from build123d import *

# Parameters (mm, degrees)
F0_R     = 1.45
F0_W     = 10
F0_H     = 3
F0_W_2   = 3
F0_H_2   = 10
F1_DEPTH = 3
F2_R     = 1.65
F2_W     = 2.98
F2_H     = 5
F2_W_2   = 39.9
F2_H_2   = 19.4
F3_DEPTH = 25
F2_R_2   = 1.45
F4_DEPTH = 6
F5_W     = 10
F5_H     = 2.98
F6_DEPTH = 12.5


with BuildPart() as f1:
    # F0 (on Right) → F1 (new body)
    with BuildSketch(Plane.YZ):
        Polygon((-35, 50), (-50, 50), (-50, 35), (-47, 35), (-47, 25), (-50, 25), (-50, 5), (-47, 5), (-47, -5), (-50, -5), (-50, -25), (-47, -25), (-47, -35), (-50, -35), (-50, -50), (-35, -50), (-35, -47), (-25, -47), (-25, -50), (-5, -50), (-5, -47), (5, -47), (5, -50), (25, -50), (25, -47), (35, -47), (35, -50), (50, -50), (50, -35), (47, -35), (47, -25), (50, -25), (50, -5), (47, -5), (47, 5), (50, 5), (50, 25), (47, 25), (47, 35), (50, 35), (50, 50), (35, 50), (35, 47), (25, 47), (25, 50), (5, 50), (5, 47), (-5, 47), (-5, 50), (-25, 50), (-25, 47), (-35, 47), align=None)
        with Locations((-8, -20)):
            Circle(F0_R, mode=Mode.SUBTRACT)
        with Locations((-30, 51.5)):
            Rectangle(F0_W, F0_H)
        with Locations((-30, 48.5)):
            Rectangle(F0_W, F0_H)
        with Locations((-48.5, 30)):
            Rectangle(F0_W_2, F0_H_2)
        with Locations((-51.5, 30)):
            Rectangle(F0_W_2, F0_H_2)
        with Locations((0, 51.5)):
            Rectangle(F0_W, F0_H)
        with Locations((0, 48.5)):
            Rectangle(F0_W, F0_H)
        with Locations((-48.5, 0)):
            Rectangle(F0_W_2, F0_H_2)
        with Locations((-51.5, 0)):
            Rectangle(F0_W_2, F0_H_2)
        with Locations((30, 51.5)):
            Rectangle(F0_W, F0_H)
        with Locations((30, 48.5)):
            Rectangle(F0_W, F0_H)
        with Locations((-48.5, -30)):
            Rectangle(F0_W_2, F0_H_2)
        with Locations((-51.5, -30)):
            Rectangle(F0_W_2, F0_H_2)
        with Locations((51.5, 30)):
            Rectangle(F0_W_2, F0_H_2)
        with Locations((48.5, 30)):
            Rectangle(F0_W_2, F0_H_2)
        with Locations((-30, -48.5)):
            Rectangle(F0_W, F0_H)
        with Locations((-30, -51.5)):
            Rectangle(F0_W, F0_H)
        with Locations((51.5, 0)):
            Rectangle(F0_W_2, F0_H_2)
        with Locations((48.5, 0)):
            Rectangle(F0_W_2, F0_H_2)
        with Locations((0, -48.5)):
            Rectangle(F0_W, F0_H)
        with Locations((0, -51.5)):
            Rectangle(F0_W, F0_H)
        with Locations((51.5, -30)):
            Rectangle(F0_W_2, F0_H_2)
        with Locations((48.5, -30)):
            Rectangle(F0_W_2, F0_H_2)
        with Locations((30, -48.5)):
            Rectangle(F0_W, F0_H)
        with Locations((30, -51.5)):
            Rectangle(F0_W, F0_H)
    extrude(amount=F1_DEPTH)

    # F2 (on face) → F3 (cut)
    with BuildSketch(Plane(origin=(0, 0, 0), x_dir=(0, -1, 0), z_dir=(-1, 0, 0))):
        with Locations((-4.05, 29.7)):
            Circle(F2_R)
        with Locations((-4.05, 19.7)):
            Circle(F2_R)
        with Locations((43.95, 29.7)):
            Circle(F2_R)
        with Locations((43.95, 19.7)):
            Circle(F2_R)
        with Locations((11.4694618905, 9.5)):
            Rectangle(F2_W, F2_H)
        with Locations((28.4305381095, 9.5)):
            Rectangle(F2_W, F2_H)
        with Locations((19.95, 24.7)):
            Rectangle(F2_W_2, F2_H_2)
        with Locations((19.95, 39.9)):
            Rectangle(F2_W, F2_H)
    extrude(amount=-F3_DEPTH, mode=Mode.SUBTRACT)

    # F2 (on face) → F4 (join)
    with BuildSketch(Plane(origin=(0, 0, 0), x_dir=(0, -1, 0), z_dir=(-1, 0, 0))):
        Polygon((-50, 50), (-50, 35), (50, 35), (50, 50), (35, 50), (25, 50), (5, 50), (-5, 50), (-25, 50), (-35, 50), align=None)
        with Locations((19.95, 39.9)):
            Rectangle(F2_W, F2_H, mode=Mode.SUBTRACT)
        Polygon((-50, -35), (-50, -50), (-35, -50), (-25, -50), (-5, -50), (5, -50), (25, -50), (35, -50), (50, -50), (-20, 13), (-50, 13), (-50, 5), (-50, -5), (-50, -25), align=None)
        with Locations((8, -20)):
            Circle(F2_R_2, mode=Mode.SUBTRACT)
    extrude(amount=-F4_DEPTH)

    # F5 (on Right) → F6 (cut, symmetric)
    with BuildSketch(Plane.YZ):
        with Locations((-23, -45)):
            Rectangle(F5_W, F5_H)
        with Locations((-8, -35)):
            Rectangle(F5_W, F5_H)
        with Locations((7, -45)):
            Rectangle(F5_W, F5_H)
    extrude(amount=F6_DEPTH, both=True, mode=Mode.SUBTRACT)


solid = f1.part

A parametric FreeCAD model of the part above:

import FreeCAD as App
import Part
import Sketcher
from FreeCAD import Vector


def add_polygon(sketch, points):
    """Adds a closed chain of lines whose ends are joined by coincident constraints."""
    first, n = sketch.GeometryCount, len(points)
    for a, b in zip(points, points[1:] + points[:1]):
        sketch.addGeometry(Part.LineSegment(App.Vector(*a, 0), App.Vector(*b, 0)), False)
    for i in range(n):
        sketch.addConstraint(Sketcher.Constraint("Coincident", first + i, 2, first + (i + 1) % n, 1))

doc = App.newDocument("Part")
body = doc.addObject("PartDesign::Body", "Body")

# Sketch on YZ plane
sketch1 = body.newObject("Sketcher::SketchObject", "Sketch")
sketch1.AttachmentSupport = (doc.getObject("YZ_Plane"), [""])
sketch1.MapMode = "FlatFace"
add_polygon(sketch1, [(-35, 50), (-50, 50), (-50, 35), (-53, 35), (-53, 25), (-50, 25), (-50, 5), (-53, 5), (-53, -5), (-50, -5), (-50, -25), (-53, -25), (-53, -35), (-50, -35), (-50, -50), (-35, -50), (-35, -53), (-25, -53), (-25, -50), (-5, -50), (-5, -53), (5, -53), (5, -50), (25, -50), (25, -53), (35, -53), (35, -50), (50, -50), (50, -35), (53, -35), (53, -25), (50, -25), (50, -5), (53, -5), (53, 5), (50, 5), (50, 25), (53, 25), (53, 35), (50, 35), (50, 50), (35, 50), (35, 53), (25, 53), (25, 50), (5, 50), (5, 53), (-5, 53), (-5, 50), (-25, 50), (-25, 53), (-35, 53)])  # lines 0-51
sketch1.addGeometry(Part.Circle(Vector(-8, -20, 0), Vector(0, 0, 1), 1.45), False)  # 52
sketch1.addConstraint([
    Sketcher.Constraint("Horizontal", 0),
    Sketcher.Constraint("Vertical", 1),
    Sketcher.Constraint("Horizontal", 2),
    Sketcher.Constraint("Vertical", 3),
    Sketcher.Constraint("Horizontal", 4),
    Sketcher.Constraint("Vertical", 5),
    Sketcher.Constraint("Horizontal", 6),
    Sketcher.Constraint("Vertical", 7),
    Sketcher.Constraint("Horizontal", 8),
    Sketcher.Constraint("Vertical", 9),
    Sketcher.Constraint("Horizontal", 10),
    Sketcher.Constraint("Vertical", 11),
    Sketcher.Constraint("Horizontal", 12),
    Sketcher.Constraint("Vertical", 13),
    Sketcher.Constraint("Horizontal", 14),
    Sketcher.Constraint("Vertical", 15),
    Sketcher.Constraint("Horizontal", 16),
    Sketcher.Constraint("Vertical", 17),
    Sketcher.Constraint("Horizontal", 18),
    Sketcher.Constraint("Vertical", 19),
    Sketcher.Constraint("Horizontal", 20),
    Sketcher.Constraint("Vertical", 21),
    Sketcher.Constraint("Horizontal", 22),
    Sketcher.Constraint("Vertical", 23),
    Sketcher.Constraint("Horizontal", 24),
    Sketcher.Constraint("Vertical", 25),
    Sketcher.Constraint("Horizontal", 26),
    Sketcher.Constraint("Vertical", 27),
    Sketcher.Constraint("Horizontal", 28),
    Sketcher.Constraint("Vertical", 29),
    Sketcher.Constraint("Horizontal", 30),
    Sketcher.Constraint("Vertical", 31),
    Sketcher.Constraint("Horizontal", 32),
    Sketcher.Constraint("Vertical", 33),
    Sketcher.Constraint("Horizontal", 34),
    Sketcher.Constraint("Vertical", 35),
    Sketcher.Constraint("Horizontal", 36),
    Sketcher.Constraint("Vertical", 37),
    Sketcher.Constraint("Horizontal", 38),
    Sketcher.Constraint("Vertical", 39),
    Sketcher.Constraint("Horizontal", 40),
    Sketcher.Constraint("Vertical", 41),
    Sketcher.Constraint("Horizontal", 42),
    Sketcher.Constraint("Vertical", 43),
    Sketcher.Constraint("Horizontal", 44),
    Sketcher.Constraint("Vertical", 45),
    Sketcher.Constraint("Horizontal", 46),
    Sketcher.Constraint("Vertical", 47),
    Sketcher.Constraint("Horizontal", 48),
    Sketcher.Constraint("Vertical", 49),
    Sketcher.Constraint("Horizontal", 50),
    Sketcher.Constraint("Vertical", 51),
    Sketcher.Constraint("Symmetric", 0, 2, 26, 2, -1, 1),
    Sketcher.Constraint("Symmetric", 2, 2, 28, 2, -1, 1),
    Sketcher.Constraint("Symmetric", 4, 2, 30, 2, -1, 1),
    Sketcher.Constraint("Symmetric", 6, 2, 32, 2, -1, 1),
    Sketcher.Constraint("Symmetric", 8, 2, 34, 2, -1, 1),
    Sketcher.Constraint("Symmetric", 10, 2, 36, 2, -1, 1),
    Sketcher.Constraint("Symmetric", 12, 2, 38, 2, -1, 1),
    Sketcher.Constraint("Symmetric", 14, 2, 40, 2, -1, 1),
    Sketcher.Constraint("Symmetric", 16, 2, 42, 2, -1, 1),
    Sketcher.Constraint("Symmetric", 18, 2, 44, 2, -1, 1),
    Sketcher.Constraint("Symmetric", 20, 2, 46, 2, -1, 1),
    Sketcher.Constraint("Symmetric", 22, 2, 48, 2, -1, 1),
    Sketcher.Constraint("Symmetric", 24, 2, 50, 2, -1, 1),
    Sketcher.Constraint("Symmetric", 18, 2, 21, 2, -2),
    Sketcher.Constraint("Symmetric", 16, 2, 23, 2, -2),
    Sketcher.Constraint("Symmetric", 14, 2, 25, 2, -2),
    Sketcher.Constraint("Symmetric", 12, 2, 27, 2, -2),
    Sketcher.Constraint("Symmetric", 10, 2, 29, 2, -2),
    Sketcher.Constraint("Symmetric", 8, 2, 31, 2, -2),
    Sketcher.Constraint("Horizontal", 14, 2, 17, 2),
    Sketcher.Constraint("Horizontal", 16, 2, 19, 2),
    Sketcher.Constraint("Vertical", 1, 2, 4, 2),
    Sketcher.Constraint("Vertical", 3, 2, 6, 2),
    Sketcher.Constraint("Equal", 16, 20),
    Sketcher.Constraint("Equal", 40, 1),
    Sketcher.Constraint("Equal", 50, 3),
    Sketcher.Constraint("Equal", 48, 5),
    Sketcher.Constraint("Equal", 3, 7),
    Sketcher.Constraint("Equal", 38, 15),
    Sketcher.Constraint("Diameter", 52, 2.9),
    Sketcher.Constraint("DistanceX", 0, 2, 0, 1, 15.0),
    Sketcher.Constraint("DistanceX", 2, 2, 2, 1, 3.0),
    Sketcher.Constraint("DistanceX", 16, 1, 16, 2, 10.0),
    Sketcher.Constraint("DistanceX", 18, 1, 18, 2, 20.0),
    Sketcher.Constraint("DistanceX", 52, 3, -1, 1, 8.0),
    Sketcher.Constraint("DistanceY", 52, 3, -1, 1, 20.0),
])
pad1 = body.newObject("PartDesign::Pad", "Pad")
pad1.Profile = sketch1
pad1.Length = 3

# Sketch on YZ plane
sketch2 = body.newObject("Sketcher::SketchObject", "Sketch001")
sketch2.AttachmentSupport = (doc.getObject("YZ_Plane"), [""])
sketch2.MapMode = "FlatFace"
sketch2.addGeometry(Part.Circle(Vector(4.05, 29.7, 0), Vector(0, 0, 1), 1.65), False)  # 0
sketch2.addGeometry(Part.Circle(Vector(4.05, 19.7, 0), Vector(0, 0, 1), 1.65), False)  # 1
sketch2.addGeometry(Part.Circle(Vector(-43.95, 29.7, 0), Vector(0, 0, 1), 1.65), False)  # 2
sketch2.addGeometry(Part.Circle(Vector(-43.95, 19.7, 0), Vector(0, 0, 1), 1.65), False)  # 3
add_polygon(sketch2, [(-9.979462, 12), (-9.979462, 7), (-12.959462, 7), (-12.959462, 12)])  # lines 4-7
add_polygon(sketch2, [(-26.940538, 12), (-26.940538, 7), (-29.920538, 7), (-29.920538, 12)])  # lines 8-11
add_polygon(sketch2, [(0, 34.4), (0, 15), (-39.9, 15), (-39.9, 34.4)])  # lines 12-15
add_polygon(sketch2, [(-18.46, 42.4), (-18.46, 37.4), (-21.44, 37.4), (-21.44, 42.4)])  # lines 16-19
sketch2.addConstraint([
    Sketcher.Constraint("Vertical", 4),
    Sketcher.Constraint("Horizontal", 5),
    Sketcher.Constraint("Vertical", 6),
    Sketcher.Constraint("Horizontal", 7),
    Sketcher.Constraint("Vertical", 8),
    Sketcher.Constraint("Horizontal", 9),
    Sketcher.Constraint("Vertical", 10),
    Sketcher.Constraint("Horizontal", 11),
    Sketcher.Constraint("Vertical", 12),
    Sketcher.Constraint("Horizontal", 13),
    Sketcher.Constraint("Vertical", 14),
    Sketcher.Constraint("Horizontal", 15),
    Sketcher.Constraint("Vertical", 16),
    Sketcher.Constraint("Horizontal", 17),
    Sketcher.Constraint("Vertical", 18),
    Sketcher.Constraint("Horizontal", 19),
    Sketcher.Constraint("Equal", 0, 1),
    Sketcher.Constraint("Equal", 1, 2),
    Sketcher.Constraint("Equal", 2, 3),
    Sketcher.Constraint("PointOnObject", 12, 2, -2),
    Sketcher.Constraint("Horizontal", 0, 3, 2, 3),
    Sketcher.Constraint("Horizontal", 1, 3, 3, 3),
    Sketcher.Constraint("Horizontal", 5, 2, 8, 2),
    Sketcher.Constraint("Horizontal", 7, 2, 10, 2),
    Sketcher.Constraint("Vertical", 0, 3, 1, 3),
    Sketcher.Constraint("Vertical", 2, 3, 3, 3),
    Sketcher.Constraint("Equal", 7, 9),
    Sketcher.Constraint("Equal", 11, 17),
    Sketcher.Constraint("Equal", 10, 16),
    Sketcher.Constraint("Diameter", 0, 3.3),
    Sketcher.Constraint("DistanceY", 4, 2, 4, 1, 5.0),
    Sketcher.Constraint("DistanceX", 13, 2, 13, 1, 39.9),
    Sketcher.Constraint("DistanceY", 12, 2, 12, 1, 19.4),
    Sketcher.Constraint("DistanceY", -1, 1, 4, 2, 7.0),
    Sketcher.Constraint("DistanceY", -1, 1, 12, 2, 15.0),
    Sketcher.Constraint("DistanceY", 1, 3, 0, 3, 10.0),
    Sketcher.Constraint("DistanceX", 2, 3, 0, 3, 48.0),
    Sketcher.Constraint("DistanceY", 15, 2, 16, 2, 3.0),
    Sketcher.Constraint("DistanceX", 5, 2, 5, 1, 2.98),
    Sketcher.Constraint("DistanceY", -1, 1, 0, 3, 29.7),
    Sketcher.Constraint("DistanceX", -1, 1, 0, 3, 4.05),
    Sketcher.Constraint("DistanceX", 16, 2, -1, 1, 18.46),
    Sketcher.Constraint("DistanceX", 4, 2, -1, 1, 9.979462),
    Sketcher.Constraint("DistanceX", 8, 2, -1, 1, 26.940538),
])
pocket1 = body.newObject("PartDesign::Pocket", "Pocket")
pocket1.Profile = sketch2
pocket1.Length = 25
pocket1.Reversed = True

# Sketch on YZ plane
sketch3 = body.newObject("Sketcher::SketchObject", "Sketch002")
sketch3.AttachmentSupport = (doc.getObject("YZ_Plane"), [""])
sketch3.MapMode = "FlatFace"
add_polygon(sketch3, [(50, 50), (50, 35), (-50, 35), (-50, 50)])  # lines 0-3
add_polygon(sketch3, [(-21.44, 37.4), (-18.46, 37.4), (-18.46, 42.4), (-21.44, 42.4)])  # lines 4-7
add_polygon(sketch3, [(50, -50), (-50, -50), (20, 13), (50, 13)])  # lines 8-11
sketch3.addGeometry(Part.Circle(Vector(-8, -20, 0), Vector(0, 0, 1), 1.45), False)  # 12
sketch3.addConstraint([
    Sketcher.Constraint("Vertical", 0),
    Sketcher.Constraint("Horizontal", 1),
    Sketcher.Constraint("Vertical", 2),
    Sketcher.Constraint("Horizontal", 3),
    Sketcher.Constraint("Horizontal", 4),
    Sketcher.Constraint("Vertical", 5),
    Sketcher.Constraint("Horizontal", 6),
    Sketcher.Constraint("Vertical", 7),
    Sketcher.Constraint("Horizontal", 8),
    Sketcher.Constraint("Horizontal", 10),
    Sketcher.Constraint("Vertical", 11),
    Sketcher.Constraint("Symmetric", 3, 2, 8, 2, -1, 1),
    Sketcher.Constraint("Vertical", 2, 2, 8, 2),
    Sketcher.Constraint("Vertical", 3, 2, 10, 2),
    Sketcher.Constraint("Diameter", 12, 2.9),
    Sketcher.Constraint("DistanceX", 1, 2, 1, 1, 100.0),
    Sketcher.Constraint("DistanceX", 10, 1, 10, 2, 30.0),
    Sketcher.Constraint("DistanceY", 0, 2, 0, 1, 15.0),
    Sketcher.Constraint("DistanceY", 5, 1, 5, 2, 5.0),
    Sketcher.Constraint("DistanceY", 11, 2, 11, 1, 63.0),
    Sketcher.Constraint("DistanceX", 12, 3, -1, 1, 8.0),
    Sketcher.Constraint("DistanceY", 12, 3, -1, 1, 20.0),
    Sketcher.Constraint("DistanceY", -1, 1, 0, 2, 35.0),
    Sketcher.Constraint("DistanceX", 4, 1, 4, 2, 2.98),
    Sketcher.Constraint("DistanceY", -1, 1, 4, 2, 37.4),
    Sketcher.Constraint("DistanceX", 4, 2, -1, 1, 18.46),
])
pad2 = body.newObject("PartDesign::Pad", "Pad001")
pad2.Profile = sketch3
pad2.Length = 6

# Sketch on YZ plane
sketch4 = body.newObject("Sketcher::SketchObject", "Sketch003")
sketch4.AttachmentSupport = (doc.getObject("YZ_Plane"), [""])
sketch4.MapMode = "FlatFace"
add_polygon(sketch4, [(-28, -43.51), (-28, -46.49), (-18, -46.49), (-18, -43.51)])  # lines 0-3
add_polygon(sketch4, [(-13, -33.51), (-13, -36.49), (-3, -36.49), (-3, -33.51)])  # lines 4-7
add_polygon(sketch4, [(2, -43.51), (2, -46.49), (12, -46.49), (12, -43.51)])  # lines 8-11
sketch4.addConstraint([
    Sketcher.Constraint("Vertical", 0),
    Sketcher.Constraint("Horizontal", 1),
    Sketcher.Constraint("Vertical", 2),
    Sketcher.Constraint("Horizontal", 3),
    Sketcher.Constraint("Vertical", 4),
    Sketcher.Constraint("Horizontal", 5),
    Sketcher.Constraint("Vertical", 6),
    Sketcher.Constraint("Horizontal", 7),
    Sketcher.Constraint("Vertical", 8),
    Sketcher.Constraint("Horizontal", 9),
    Sketcher.Constraint("Vertical", 10),
    Sketcher.Constraint("Horizontal", 11),
    Sketcher.Constraint("Horizontal", 1, 2, 8, 2),
    Sketcher.Constraint("Horizontal", 3, 2, 10, 2),
    Sketcher.Constraint("Equal", 3, 5),
    Sketcher.Constraint("Equal", 7, 9),
    Sketcher.Constraint("Equal", 2, 4),
    Sketcher.Constraint("DistanceX", 1, 1, 1, 2, 10.0),
    Sketcher.Constraint("DistanceX", 0, 2, -1, 1, 28.0),
    Sketcher.Constraint("DistanceX", 4, 2, -1, 1, 13.0),
    Sketcher.Constraint("DistanceX", -1, 1, 8, 2, 2.0),
    Sketcher.Constraint("DistanceY", 1, 2, 4, 2, 10.0),
    Sketcher.Constraint("DistanceY", 0, 2, 0, 1, 2.98),
    Sketcher.Constraint("DistanceY", 0, 2, -1, 1, 46.49),
])
pocket2 = body.newObject("PartDesign::Pocket", "Pocket001")
pocket2.Profile = sketch4
pocket2.Length = 25
pocket2.Midplane = True

doc.recompute()
